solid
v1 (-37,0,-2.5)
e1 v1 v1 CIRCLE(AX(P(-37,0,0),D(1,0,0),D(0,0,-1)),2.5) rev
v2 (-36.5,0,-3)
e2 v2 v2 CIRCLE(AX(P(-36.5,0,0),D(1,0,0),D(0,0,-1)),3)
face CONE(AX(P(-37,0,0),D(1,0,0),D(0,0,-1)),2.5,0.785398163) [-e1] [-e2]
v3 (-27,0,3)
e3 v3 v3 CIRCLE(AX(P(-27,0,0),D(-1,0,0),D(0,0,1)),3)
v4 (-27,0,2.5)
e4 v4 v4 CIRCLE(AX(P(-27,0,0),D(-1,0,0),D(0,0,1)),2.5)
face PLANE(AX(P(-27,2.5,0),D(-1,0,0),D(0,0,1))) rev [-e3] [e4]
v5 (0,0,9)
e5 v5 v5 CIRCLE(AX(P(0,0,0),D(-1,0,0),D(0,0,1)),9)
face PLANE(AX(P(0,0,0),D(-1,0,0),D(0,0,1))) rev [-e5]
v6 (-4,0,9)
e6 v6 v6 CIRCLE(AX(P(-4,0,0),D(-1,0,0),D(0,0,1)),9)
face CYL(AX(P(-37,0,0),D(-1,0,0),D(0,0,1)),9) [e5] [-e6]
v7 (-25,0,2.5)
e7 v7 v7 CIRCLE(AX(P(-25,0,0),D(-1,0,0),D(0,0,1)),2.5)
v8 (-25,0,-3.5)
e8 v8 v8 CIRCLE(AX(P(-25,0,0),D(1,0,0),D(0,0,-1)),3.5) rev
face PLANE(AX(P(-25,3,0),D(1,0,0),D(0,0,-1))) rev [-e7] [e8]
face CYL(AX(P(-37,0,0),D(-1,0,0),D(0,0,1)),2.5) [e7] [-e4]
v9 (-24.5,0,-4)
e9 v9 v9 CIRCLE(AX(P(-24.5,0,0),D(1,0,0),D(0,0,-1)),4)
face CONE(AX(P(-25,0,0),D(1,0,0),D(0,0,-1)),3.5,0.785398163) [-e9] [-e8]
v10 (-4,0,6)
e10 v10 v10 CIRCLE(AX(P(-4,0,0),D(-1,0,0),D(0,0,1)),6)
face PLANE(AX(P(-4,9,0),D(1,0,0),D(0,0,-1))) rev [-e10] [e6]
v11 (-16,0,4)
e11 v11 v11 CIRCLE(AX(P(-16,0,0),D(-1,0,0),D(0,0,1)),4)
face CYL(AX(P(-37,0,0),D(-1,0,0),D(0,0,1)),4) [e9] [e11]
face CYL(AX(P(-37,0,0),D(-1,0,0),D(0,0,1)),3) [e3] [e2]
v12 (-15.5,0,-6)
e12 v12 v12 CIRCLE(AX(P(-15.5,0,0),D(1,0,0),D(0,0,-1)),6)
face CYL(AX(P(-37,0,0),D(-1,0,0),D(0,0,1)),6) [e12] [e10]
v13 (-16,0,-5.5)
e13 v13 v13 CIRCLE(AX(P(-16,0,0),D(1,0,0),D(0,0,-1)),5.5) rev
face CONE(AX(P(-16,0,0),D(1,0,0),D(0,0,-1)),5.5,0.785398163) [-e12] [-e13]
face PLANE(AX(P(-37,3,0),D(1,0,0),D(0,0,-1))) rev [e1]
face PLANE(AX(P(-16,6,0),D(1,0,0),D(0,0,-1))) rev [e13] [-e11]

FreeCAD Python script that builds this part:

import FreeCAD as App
import Part
import Sketcher
from FreeCAD import Vector


def edges_at(feature, points):
    """Names of the edges that pass closest to the given points."""
    edges = feature.Shape.Edges
    near = lambda p: min(range(len(edges)), key=lambda i: edges[i].distToShape(Part.Vertex(*p))[0])
    return sorted({f"Edge{near(p) + 1}" for p in points})


def add_polygon(sketch, points):
    """Adds a closed chain of lines whose ends are joined by coincident constraints."""
    first, n = sketch.GeometryCount, len(points)
    for a, b in zip(points, points[1:] + points[:1]):
        sketch.addGeometry(Part.LineSegment(App.Vector(*a, 0), App.Vector(*b, 0)), False)
    for i in range(n):
        sketch.addConstraint(Sketcher.Constraint("Coincident", first + i, 2, first + (i + 1) % n, 1))

doc = App.newDocument("Part")
body = doc.addObject("PartDesign::Body", "Body")

sketch1 = body.newObject("Sketcher::SketchObject", "Sketch")
sketch1.AttachmentSupport = (doc.getObject("XY_Plane"), [""])
sketch1.MapMode = "FlatFace"
add_polygon(sketch1, [(0, 0), (0, 9), (-4, 9), (-4, 6), (-16, 6), (-16, 4), (-25, 4), (-25, 2.5), (-27, 2.5), (-27, 3), (-37, 3), (-37, 0)])
sketch1.addConstraint([
    Sketcher.Constraint("Vertical", 0),
    Sketcher.Constraint("Horizontal", 1),
    Sketcher.Constraint("Vertical", 2),
    Sketcher.Constraint("Horizontal", 3),
    Sketcher.Constraint("Vertical", 4),
    Sketcher.Constraint("Horizontal", 5),
    Sketcher.Constraint("Vertical", 6),
    Sketcher.Constraint("Horizontal", 7),
    Sketcher.Constraint("Vertical", 8),
    Sketcher.Constraint("Horizontal", 9),
    Sketcher.Constraint("Vertical", 10),
    Sketcher.Constraint("Horizontal", 11),
    Sketcher.Constraint("Coincident", 11, 2, -1, 1),
    Sketcher.Constraint("Equal", 5, 0),
    Sketcher.Constraint("Equal", 7, 4),
    Sketcher.Constraint("Equal", 2, 10),
    Sketcher.Constraint("DistanceX", 1, 2, 1, 1, 4.0),
    Sketcher.Constraint("DistanceX", 3, 2, 3, 1, 12.0),
    Sketcher.Constraint("DistanceX", 5, 2, 5, 1, 9.0),
    Sketcher.Constraint("DistanceX", 7, 2, 7, 1, 2.0),
    Sketcher.Constraint("DistanceX", 9, 2, 9, 1, 10.0),
    Sketcher.Constraint("DistanceY", 2, 2, 2, 1, 3.0),
    Sketcher.Constraint("DistanceY", 6, 2, 6, 1, 1.5),
])
revolution = body.newObject("PartDesign::Revolution", "Revolution")
revolution.Profile = sketch1
revolution.ReferenceAxis = (sketch1, ["H_Axis"])
revolution.Angle = 360
doc.recompute()

chamfer = body.newObject("PartDesign::Chamfer", "Chamfer")
chamfer.Base = (revolution, edges_at(revolution, [(-37, 0, -3)]))
chamfer.Size = 0.5
doc.recompute()

chamfer2 = body.newObject("PartDesign::Chamfer", "Chamfer001")
chamfer2.Base = (chamfer, edges_at(chamfer, [(-16, 0, -6)]))
chamfer2.Size = 0.5
doc.recompute()

chamfer3 = body.newObject("PartDesign::Chamfer", "Chamfer002")
chamfer3.Base = (chamfer2, edges_at(chamfer2, [(-25, 0, -4)]))
chamfer3.Size = 0.5

doc.recompute()
